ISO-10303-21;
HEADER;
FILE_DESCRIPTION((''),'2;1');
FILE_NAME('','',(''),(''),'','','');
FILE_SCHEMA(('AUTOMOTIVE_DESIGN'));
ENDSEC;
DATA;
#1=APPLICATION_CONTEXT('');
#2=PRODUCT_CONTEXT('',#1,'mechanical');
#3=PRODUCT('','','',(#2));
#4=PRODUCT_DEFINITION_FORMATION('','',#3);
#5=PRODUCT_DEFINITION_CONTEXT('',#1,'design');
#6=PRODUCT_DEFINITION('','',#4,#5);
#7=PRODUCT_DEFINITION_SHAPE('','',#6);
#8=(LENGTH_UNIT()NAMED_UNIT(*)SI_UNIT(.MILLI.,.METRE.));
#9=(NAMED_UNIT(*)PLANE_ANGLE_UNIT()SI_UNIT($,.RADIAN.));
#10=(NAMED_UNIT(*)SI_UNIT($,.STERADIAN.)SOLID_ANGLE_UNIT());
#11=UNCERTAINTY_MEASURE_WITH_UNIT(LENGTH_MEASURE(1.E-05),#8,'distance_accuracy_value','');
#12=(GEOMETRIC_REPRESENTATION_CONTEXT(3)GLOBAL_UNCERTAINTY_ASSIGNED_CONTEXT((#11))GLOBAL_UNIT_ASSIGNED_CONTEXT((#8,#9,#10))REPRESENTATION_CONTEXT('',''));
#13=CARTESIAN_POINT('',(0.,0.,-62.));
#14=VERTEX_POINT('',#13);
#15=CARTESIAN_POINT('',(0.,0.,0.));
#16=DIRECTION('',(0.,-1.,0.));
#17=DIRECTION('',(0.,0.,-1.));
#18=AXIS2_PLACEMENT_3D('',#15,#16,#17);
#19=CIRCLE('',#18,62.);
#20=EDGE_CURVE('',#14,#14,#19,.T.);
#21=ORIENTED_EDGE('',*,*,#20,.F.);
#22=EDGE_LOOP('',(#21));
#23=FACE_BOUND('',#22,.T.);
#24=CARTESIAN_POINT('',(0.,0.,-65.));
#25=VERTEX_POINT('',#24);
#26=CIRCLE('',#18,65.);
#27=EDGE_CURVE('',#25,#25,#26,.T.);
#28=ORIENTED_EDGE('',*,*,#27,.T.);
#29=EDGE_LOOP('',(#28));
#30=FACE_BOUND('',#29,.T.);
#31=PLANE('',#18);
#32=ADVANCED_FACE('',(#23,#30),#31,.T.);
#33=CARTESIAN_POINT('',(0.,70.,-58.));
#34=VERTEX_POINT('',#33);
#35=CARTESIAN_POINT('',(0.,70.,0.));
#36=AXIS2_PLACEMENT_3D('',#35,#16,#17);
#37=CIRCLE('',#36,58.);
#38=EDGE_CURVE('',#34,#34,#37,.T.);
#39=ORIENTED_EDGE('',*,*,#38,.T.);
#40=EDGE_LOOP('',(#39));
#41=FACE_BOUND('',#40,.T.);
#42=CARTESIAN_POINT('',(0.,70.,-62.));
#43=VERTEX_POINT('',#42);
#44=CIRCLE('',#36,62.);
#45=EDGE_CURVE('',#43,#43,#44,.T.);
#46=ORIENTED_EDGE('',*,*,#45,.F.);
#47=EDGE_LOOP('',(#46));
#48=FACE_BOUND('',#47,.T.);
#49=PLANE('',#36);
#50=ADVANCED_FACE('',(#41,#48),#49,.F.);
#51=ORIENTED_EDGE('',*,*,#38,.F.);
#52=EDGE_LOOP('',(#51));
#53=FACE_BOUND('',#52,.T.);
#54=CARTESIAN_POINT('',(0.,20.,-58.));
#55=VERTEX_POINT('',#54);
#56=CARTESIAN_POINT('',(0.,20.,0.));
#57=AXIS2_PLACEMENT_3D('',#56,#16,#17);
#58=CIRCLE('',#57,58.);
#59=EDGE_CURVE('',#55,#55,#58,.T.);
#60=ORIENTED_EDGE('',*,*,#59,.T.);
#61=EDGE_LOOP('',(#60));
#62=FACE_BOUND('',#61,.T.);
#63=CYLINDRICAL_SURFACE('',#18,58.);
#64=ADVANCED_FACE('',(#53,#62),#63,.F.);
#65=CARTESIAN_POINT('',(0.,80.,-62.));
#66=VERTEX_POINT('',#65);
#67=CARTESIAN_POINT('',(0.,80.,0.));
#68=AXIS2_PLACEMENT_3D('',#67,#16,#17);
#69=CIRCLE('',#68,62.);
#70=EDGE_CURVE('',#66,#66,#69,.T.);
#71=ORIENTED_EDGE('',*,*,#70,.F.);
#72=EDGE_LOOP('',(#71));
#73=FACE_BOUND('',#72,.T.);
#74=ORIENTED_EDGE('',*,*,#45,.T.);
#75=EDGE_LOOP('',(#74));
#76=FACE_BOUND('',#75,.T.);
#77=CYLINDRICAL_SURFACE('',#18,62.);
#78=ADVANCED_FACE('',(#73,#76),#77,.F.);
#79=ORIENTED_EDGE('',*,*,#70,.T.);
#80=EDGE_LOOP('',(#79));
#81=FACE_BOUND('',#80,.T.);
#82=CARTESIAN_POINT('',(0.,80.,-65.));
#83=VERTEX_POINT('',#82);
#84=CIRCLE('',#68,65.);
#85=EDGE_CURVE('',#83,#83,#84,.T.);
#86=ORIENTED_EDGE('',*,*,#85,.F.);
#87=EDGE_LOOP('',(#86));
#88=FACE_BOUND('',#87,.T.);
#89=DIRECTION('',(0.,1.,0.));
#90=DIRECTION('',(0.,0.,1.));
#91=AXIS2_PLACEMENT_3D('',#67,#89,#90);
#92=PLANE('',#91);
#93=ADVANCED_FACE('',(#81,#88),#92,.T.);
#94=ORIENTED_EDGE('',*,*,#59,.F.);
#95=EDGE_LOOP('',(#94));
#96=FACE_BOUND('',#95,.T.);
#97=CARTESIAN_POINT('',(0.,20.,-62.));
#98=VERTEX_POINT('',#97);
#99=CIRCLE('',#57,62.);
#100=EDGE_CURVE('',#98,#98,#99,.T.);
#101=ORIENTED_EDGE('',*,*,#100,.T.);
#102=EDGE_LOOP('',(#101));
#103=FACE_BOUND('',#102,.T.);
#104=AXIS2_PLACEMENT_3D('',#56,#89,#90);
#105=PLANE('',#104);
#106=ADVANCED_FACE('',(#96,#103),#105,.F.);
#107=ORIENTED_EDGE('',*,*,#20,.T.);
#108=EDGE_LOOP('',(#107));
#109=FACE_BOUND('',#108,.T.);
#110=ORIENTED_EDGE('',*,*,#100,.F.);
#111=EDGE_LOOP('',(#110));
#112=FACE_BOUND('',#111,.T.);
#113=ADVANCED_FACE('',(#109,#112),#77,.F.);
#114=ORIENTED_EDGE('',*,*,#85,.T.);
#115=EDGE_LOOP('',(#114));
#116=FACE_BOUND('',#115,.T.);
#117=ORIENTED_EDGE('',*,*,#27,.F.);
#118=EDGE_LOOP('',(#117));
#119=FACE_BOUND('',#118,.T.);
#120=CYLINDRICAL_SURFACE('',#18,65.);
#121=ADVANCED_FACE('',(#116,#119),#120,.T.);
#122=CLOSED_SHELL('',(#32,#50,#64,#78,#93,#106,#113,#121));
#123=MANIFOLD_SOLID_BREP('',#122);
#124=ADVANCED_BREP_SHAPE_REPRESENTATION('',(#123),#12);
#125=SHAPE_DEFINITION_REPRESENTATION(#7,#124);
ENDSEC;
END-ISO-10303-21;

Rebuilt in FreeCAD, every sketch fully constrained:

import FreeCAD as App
import Part
import Sketcher

V = App.Vector
Q = App.Units.Quantity


def add_polygon(sketch, points):
    """Adds a closed chain of lines whose ends are joined by coincident constraints."""
    first, n = sketch.GeometryCount, len(points)
    for a, b in zip(points, points[1:] + points[:1]):
        sketch.addGeometry(Part.LineSegment(App.Vector(*a, 0), App.Vector(*b, 0)), False)
    for i in range(n):
        sketch.addConstraint(Sketcher.Constraint("Coincident", first + i, 2, first + (i + 1) % n, 1))

doc = App.newDocument("Part")
body = doc.addObject("PartDesign::Body", "Body")

# Sketch on XY plane
sketch1 = doc.addObject("Sketcher::SketchObject", "Sketch")
body.addObject(sketch1)
sketch1.AttachmentSupport = (doc.XY_Plane, [""])
sketch1.MapMode = "FlatFace"
add_polygon(sketch1, [(-65, 0), (-62, 0), (-62, 20), (-58, 20), (-58, 70), (-62, 70), (-62, 80), (-65, 80)])  # lines 0-7
sketch1.addConstraint(Sketcher.Constraint("Horizontal", 0))
sketch1.addConstraint(Sketcher.Constraint("Vertical", 1))
sketch1.addConstraint(Sketcher.Constraint("Horizontal", 2))
sketch1.addConstraint(Sketcher.Constraint("Vertical", 3))
sketch1.addConstraint(Sketcher.Constraint("Horizontal", 4))
sketch1.addConstraint(Sketcher.Constraint("Vertical", 5))
sketch1.addConstraint(Sketcher.Constraint("Horizontal", 6))
sketch1.addConstraint(Sketcher.Constraint("Vertical", 7))
sketch1.addConstraint(Sketcher.Constraint("PointOnObject", 0, 2, -1))
sketch1.addConstraint(Sketcher.Constraint("Vertical", 1, 2, 4, 2))
sketch1.addConstraint(Sketcher.Constraint("DistanceX", 0, 1, 0, 2, Q("3 mm")))
sketch1.addConstraint(Sketcher.Constraint("DistanceX", 2, 1, 2, 2, Q("4 mm")))
sketch1.addConstraint(Sketcher.Constraint("DistanceY", 1, 1, 1, 2, Q("20 mm")))
sketch1.addConstraint(Sketcher.Constraint("DistanceY", 3, 1, 3, 2, Q("50 mm")))
sketch1.addConstraint(Sketcher.Constraint("DistanceY", 5, 1, 5, 2, Q("10 mm")))
sketch1.addConstraint(Sketcher.Constraint("DistanceX", 0, 2, -1, 1, Q("62 mm")))
revolution = doc.addObject("PartDesign::Revolution", "Revolution")
body.addObject(revolution)
revolution.Profile = sketch1
revolution.ReferenceAxis = (sketch1, ["V_Axis"])
revolution.Angle = 360

doc.recompute()
